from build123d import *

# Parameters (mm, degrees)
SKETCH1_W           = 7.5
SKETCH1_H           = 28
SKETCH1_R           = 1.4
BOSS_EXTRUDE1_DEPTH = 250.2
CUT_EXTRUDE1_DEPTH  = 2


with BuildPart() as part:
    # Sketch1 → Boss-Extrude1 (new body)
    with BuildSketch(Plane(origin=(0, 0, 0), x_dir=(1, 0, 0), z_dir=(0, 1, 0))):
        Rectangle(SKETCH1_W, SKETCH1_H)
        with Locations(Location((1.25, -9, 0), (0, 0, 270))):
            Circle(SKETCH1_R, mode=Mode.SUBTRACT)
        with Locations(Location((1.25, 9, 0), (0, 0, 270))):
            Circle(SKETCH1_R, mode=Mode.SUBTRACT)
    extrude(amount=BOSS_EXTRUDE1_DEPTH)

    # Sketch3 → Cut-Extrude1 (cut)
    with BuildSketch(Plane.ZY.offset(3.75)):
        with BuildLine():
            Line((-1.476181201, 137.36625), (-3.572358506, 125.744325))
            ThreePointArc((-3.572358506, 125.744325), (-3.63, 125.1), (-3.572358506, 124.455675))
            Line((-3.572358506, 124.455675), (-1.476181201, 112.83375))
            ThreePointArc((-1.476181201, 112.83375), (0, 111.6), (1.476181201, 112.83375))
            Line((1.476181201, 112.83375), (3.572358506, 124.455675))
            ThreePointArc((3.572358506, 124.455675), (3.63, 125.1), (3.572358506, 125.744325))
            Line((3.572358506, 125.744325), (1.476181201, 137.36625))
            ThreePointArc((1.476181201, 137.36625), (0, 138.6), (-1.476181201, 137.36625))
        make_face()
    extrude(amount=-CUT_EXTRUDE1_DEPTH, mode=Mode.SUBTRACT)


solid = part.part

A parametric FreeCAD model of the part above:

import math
import FreeCAD as App
import Part
import Sketcher

V = App.Vector
Q = App.Units.Quantity


def add_polygon(sketch, points):
    """Adds a closed chain of lines whose ends are joined by coincident constraints."""
    first, n = sketch.GeometryCount, len(points)
    for a, b in zip(points, points[1:] + points[:1]):
        sketch.addGeometry(Part.LineSegment(App.Vector(*a, 0), App.Vector(*b, 0)), False)
    for i in range(n):
        sketch.addConstraint(Sketcher.Constraint("Coincident", first + i, 2, first + (i + 1) % n, 1))

doc = App.newDocument("Part")
body = doc.addObject("PartDesign::Body", "Body")

sketch1 = body.newObject("Sketcher::SketchObject", "Sketch")
sketch1.AttachmentSupport = (doc.getObject("XZ_Plane"), [""])
sketch1.MapMode = "FlatFace"
add_polygon(sketch1, [(-3.75, -14), (-3.75, 14), (3.75, 14), (3.75, -14)])
sketch1.addGeometry(Part.Circle(V(1.25, 9, 0), V(0, 0, 1), 1.4), False)
sketch1.addGeometry(Part.Circle(V(1.25, -9, 0), V(0, 0, 1), 1.4), False)
sketch1.addConstraint(Sketcher.Constraint("Vertical", 0))
sketch1.addConstraint(Sketcher.Constraint("Horizontal", 1))
sketch1.addConstraint(Sketcher.Constraint("Vertical", 2))
sketch1.addConstraint(Sketcher.Constraint("Horizontal", 3))
sketch1.addConstraint(Sketcher.Constraint("Equal", 4, 5))
sketch1.addConstraint(Sketcher.Constraint("Symmetric", 0, 2, 2, 2, -1, 1))
sketch1.addConstraint(Sketcher.Constraint("Symmetric", 4, 3, 5, 3, -1))
sketch1.addConstraint(Sketcher.Constraint("Diameter", 4, Q("2.8 mm")))
sketch1.addConstraint(Sketcher.Constraint("DistanceY", 0, 1, 0, 2, Q("28 mm")))
sketch1.addConstraint(Sketcher.Constraint("DistanceX", 1, 1, 1, 2, Q("7.5 mm")))
sketch1.addConstraint(Sketcher.Constraint("DistanceY", -1, 1, 4, 3, Q("9 mm")))
sketch1.addConstraint(Sketcher.Constraint("DistanceX", 0, 2, 4, 3, Q("5 mm")))
pad1 = body.newObject("PartDesign::Pad", "Pad")
pad1.Profile = sketch1
pad1.Length = 250.2
pad1.Reversed = True

sketch2 = body.newObject("Sketcher::SketchObject", "Sketch001")
sketch2.AttachmentSupport = (doc.getObject("YZ_Plane"), [""])
sketch2.MapMode = "FlatFace"
sketch2.AttachmentOffset = App.Placement(V(0, 0, -3.75), App.Rotation())
sketch2.addGeometry(Part.LineSegment(V(137.36625, -1.476181, 0), V(125.744325, -3.572359, 0)), False)
sketch2.addGeometry(Part.ArcOfCircle(Part.Circle(V(125.1, 0, 0), V(0, 0, 1), 3.63), math.radians(-100.224176), math.radians(-79.775824)), False)
sketch2.addGeometry(Part.LineSegment(V(124.455675, -3.572359, 0), V(112.83375, -1.476181, 0)), False)
sketch2.addGeometry(Part.ArcOfCircle(Part.Circle(V(113.1, 0, 0), V(0, 0, 1), 1.5), math.radians(100.224176), math.radians(259.775824)), False)
sketch2.addGeometry(Part.LineSegment(V(112.83375, 1.476181, 0), V(124.455675, 3.572359, 0)), False)
sketch2.addGeometry(Part.ArcOfCircle(Part.Circle(V(125.1, 0, 0), V(0, 0, 1), 3.63), math.radians(79.775824), math.radians(100.224176)), False)
sketch2.addGeometry(Part.LineSegment(V(125.744325, 3.572359, 0), V(137.36625, 1.476181, 0)), False)
sketch2.addGeometry(Part.ArcOfCircle(Part.Circle(V(137.1, 0, 0), V(0, 0, 1), 1.5), math.radians(-79.775824), math.radians(79.775824)), False)
sketch2.addConstraint(Sketcher.Constraint("Tangent", 0, 2, 1, 2))
sketch2.addConstraint(Sketcher.Constraint("Tangent", 1, 1, 2, 1))
sketch2.addConstraint(Sketcher.Constraint("Tangent", 2, 2, 3, 2))
sketch2.addConstraint(Sketcher.Constraint("Tangent", 3, 1, 4, 1))
sketch2.addConstraint(Sketcher.Constraint("Tangent", 4, 2, 5, 2))
sketch2.addConstraint(Sketcher.Constraint("Tangent", 5, 1, 6, 1))
sketch2.addConstraint(Sketcher.Constraint("Tangent", 6, 2, 7, 2))
sketch2.addConstraint(Sketcher.Constraint("Tangent", 7, 1, 0, 1))
sketch2.addConstraint(Sketcher.Constraint("Coincident", 5, 3, 1, 3))
sketch2.addConstraint(Sketcher.Constraint("Equal", 1, 5))
sketch2.addConstraint(Sketcher.Constraint("Equal", 3, 7))
sketch2.addConstraint(Sketcher.Constraint("Symmetric", 2, 2, 3, 1, -1))
sketch2.addConstraint(Sketcher.Constraint("PointOnObject", 7, 3, -1))
sketch2.addConstraint(Sketcher.Constraint("Parallel", 0, 4))
sketch2.addConstraint(Sketcher.Constraint("Radius", 3, Q("1.5 mm")))
sketch2.addConstraint(Sketcher.Constraint("Radius", 1, Q("3.63 mm")))
sketch2.addConstraint(Sketcher.Constraint("DistanceX", 3, 3, 1, 3, Q("12 mm")))
sketch2.addConstraint(Sketcher.Constraint("DistanceX", -1, 1, 1, 3, Q("125.1 mm")))
pocket1 = body.newObject("PartDesign::Pocket", "Pocket")
pocket1.Profile = sketch2
pocket1.Length = 2
pocket1.Reversed = True

doc.recompute()
